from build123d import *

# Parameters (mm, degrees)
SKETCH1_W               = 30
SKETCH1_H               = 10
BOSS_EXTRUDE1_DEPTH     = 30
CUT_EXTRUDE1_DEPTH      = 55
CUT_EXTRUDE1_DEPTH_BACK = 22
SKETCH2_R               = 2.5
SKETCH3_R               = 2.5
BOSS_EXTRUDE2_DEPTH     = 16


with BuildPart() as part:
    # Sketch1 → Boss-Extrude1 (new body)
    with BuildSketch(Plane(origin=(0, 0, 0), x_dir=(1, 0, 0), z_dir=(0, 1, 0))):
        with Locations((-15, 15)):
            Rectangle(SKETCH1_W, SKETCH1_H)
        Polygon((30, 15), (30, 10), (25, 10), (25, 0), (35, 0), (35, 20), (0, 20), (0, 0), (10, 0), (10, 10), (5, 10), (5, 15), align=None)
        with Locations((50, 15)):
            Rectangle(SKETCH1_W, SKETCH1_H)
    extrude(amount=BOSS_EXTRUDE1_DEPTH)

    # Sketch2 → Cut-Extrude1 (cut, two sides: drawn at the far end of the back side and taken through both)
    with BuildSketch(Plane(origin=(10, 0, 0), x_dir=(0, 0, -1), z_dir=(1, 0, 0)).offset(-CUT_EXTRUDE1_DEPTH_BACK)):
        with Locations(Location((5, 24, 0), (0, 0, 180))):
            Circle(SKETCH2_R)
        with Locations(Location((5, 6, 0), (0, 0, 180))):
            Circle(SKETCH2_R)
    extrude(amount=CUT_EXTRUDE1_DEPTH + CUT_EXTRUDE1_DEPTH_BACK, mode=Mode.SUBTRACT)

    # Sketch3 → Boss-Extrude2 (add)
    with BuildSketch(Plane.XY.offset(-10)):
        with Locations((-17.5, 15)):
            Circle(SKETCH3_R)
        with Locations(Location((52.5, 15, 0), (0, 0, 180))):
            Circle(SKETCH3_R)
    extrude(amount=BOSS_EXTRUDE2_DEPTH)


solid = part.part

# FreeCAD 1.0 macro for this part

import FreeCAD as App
import Part
import Sketcher

V = App.Vector

doc = App.newDocument("Part")
body = doc.addObject("PartDesign::Body", "Body")

sketch1 = body.newObject("Sketcher::SketchObject", "Sketch")
sketch1.AttachmentSupport = (doc.getObject("XZ_Plane"), [""])
sketch1.MapMode = "FlatFace"
sketch1.addGeometry([
    Part.LineSegment(V(-30, -20, 0), V(-30, -10, 0)),
    Part.LineSegment(V(-30, -10, 0), V(0, -10, 0)),
    Part.LineSegment(V(0, -10, 0), V(0, 0, 0)),
    Part.LineSegment(V(0, 0, 0), V(10, 0, 0)),
    Part.LineSegment(V(10, 0, 0), V(10, -10, 0)),
    Part.LineSegment(V(10, -10, 0), V(5, -10, 0)),
    Part.LineSegment(V(5, -10, 0), V(5, -15, 0)),
    Part.LineSegment(V(5, -15, 0), V(30, -15, 0)),
    Part.LineSegment(V(30, -15, 0), V(30, -10, 0)),
    Part.LineSegment(V(30, -10, 0), V(25, -10, 0)),
    Part.LineSegment(V(25, -10, 0), V(25, 0, 0)),
    Part.LineSegment(V(25, 0, 0), V(35, 0, 0)),
    Part.LineSegment(V(35, 0, 0), V(35, -10, 0)),
    Part.LineSegment(V(35, -10, 0), V(65, -10, 0)),
    Part.LineSegment(V(65, -10, 0), V(65, -20, 0)),
    Part.LineSegment(V(65, -20, 0), V(-30, -20, 0)),
], False)
sketch1.addConstraint([
    Sketcher.Constraint("Coincident", 0, 2, 1, 1),
    Sketcher.Constraint("Coincident", 1, 2, 2, 1),
    Sketcher.Constraint("Coincident", 2, 2, 3, 1),
    Sketcher.Constraint("Coincident", 3, 2, 4, 1),
    Sketcher.Constraint("Coincident", 4, 2, 5, 1),
    Sketcher.Constraint("Coincident", 5, 2, 6, 1),
    Sketcher.Constraint("Coincident", 6, 2, 7, 1),
    Sketcher.Constraint("Coincident", 7, 2, 8, 1),
    Sketcher.Constraint("Coincident", 8, 2, 9, 1),
    Sketcher.Constraint("Coincident", 9, 2, 10, 1),
    Sketcher.Constraint("Coincident", 10, 2, 11, 1),
    Sketcher.Constraint("Coincident", 11, 2, 12, 1),
    Sketcher.Constraint("Coincident", 12, 2, 13, 1),
    Sketcher.Constraint("Coincident", 13, 2, 14, 1),
    Sketcher.Constraint("Coincident", 14, 2, 15, 1),
    Sketcher.Constraint("Coincident", 15, 2, 0, 1),
    Sketcher.Constraint("Vertical", 0),
    Sketcher.Constraint("Horizontal", 1),
    Sketcher.Constraint("Vertical", 2),
    Sketcher.Constraint("Horizontal", 3),
    Sketcher.Constraint("Vertical", 4),
    Sketcher.Constraint("Horizontal", 5),
    Sketcher.Constraint("Vertical", 6),
    Sketcher.Constraint("Horizontal", 7),
    Sketcher.Constraint("Vertical", 8),
    Sketcher.Constraint("Horizontal", 9),
    Sketcher.Constraint("Vertical", 10),
    Sketcher.Constraint("Horizontal", 11),
    Sketcher.Constraint("Vertical", 12),
    Sketcher.Constraint("Horizontal", 13),
    Sketcher.Constraint("Vertical", 14),
    Sketcher.Constraint("Horizontal", 15),
    Sketcher.Constraint("Coincident", 2, 2, -1, 1),
    Sketcher.Constraint("Symmetric", 0, 2, 8, 2, -2),
    Sketcher.Constraint("PointOnObject", 10, 2, -1),
    Sketcher.Constraint("Horizontal", 1, 2, 4, 2),
    Sketcher.Constraint("Horizontal", 9, 2, 12, 2),
    Sketcher.Constraint("Equal", 5, 9),
    Sketcher.Constraint("Equal", 3, 11),
    Sketcher.Constraint("Equal", 1, 13),
    Sketcher.Constraint("Equal", 11, 0),
    Sketcher.Constraint("Equal", 0, 2),
    Sketcher.Constraint("Equal", 9, 6),
    Sketcher.Constraint("DistanceX", 1, 1, 1, 2, 30.0),
    Sketcher.Constraint("DistanceX", 3, 1, 3, 2, 10.0),
    Sketcher.Constraint("DistanceX", 5, 2, 5, 1, 5.0),
])
pad1 = body.newObject("PartDesign::Pad", "Pad")
pad1.Profile = sketch1
pad1.Length = 30
pad1.Reversed = True

sketch2 = body.newObject("Sketcher::SketchObject", "Sketch001")
sketch2.AttachmentSupport = (doc.getObject("YZ_Plane"), [""])
sketch2.MapMode = "FlatFace"
sketch2.AttachmentOffset = App.Placement(V(0, 0, 10), App.Rotation())
sketch2.addGeometry([
    Part.Circle(V(24, -5, 0), V(0, 0, 1), 2.5),
    Part.Circle(V(6, -5, 0), V(0, 0, 1), 2.5),
], False)
sketch2.addConstraint([
    Sketcher.Constraint("Equal", 0, 1),
    Sketcher.Constraint("Horizontal", 0, 3, 1, 3),
    Sketcher.Constraint("Diameter", 0, 5.0),
    Sketcher.Constraint("DistanceX", -1, 1, 0, 3, 24.0),
    Sketcher.Constraint("DistanceY", 0, 3, -1, 1, 5.0),
    Sketcher.Constraint("DistanceX", -1, 1, 1, 3, 6.0),
])
pocket1 = body.newObject("PartDesign::Pocket", "Pocket")
pocket1.Profile = sketch2
pocket1.Type = "ThroughAll"
pocket1.Midplane = True

sketch3 = body.newObject("Sketcher::SketchObject", "Sketch002")
sketch3.AttachmentSupport = (doc.getObject("XY_Plane"), [""])
sketch3.MapMode = "FlatFace"
sketch3.AttachmentOffset = App.Placement(V(0, 0, -10), App.Rotation())
sketch3.addGeometry([
    Part.Circle(V(-17.5, 15, 0), V(0, 0, 1), 2.5),
    Part.Circle(V(52.5, 15, 0), V(0, 0, 1), 2.5),
], False)
sketch3.addConstraint([
    Sketcher.Constraint("Equal", 0, 1),
    Sketcher.Constraint("Horizontal", 0, 3, 1, 3),
    Sketcher.Constraint("Diameter", 0, 5.0),
    Sketcher.Constraint("DistanceY", -1, 1, 0, 3, 15.0),
    Sketcher.Constraint("DistanceX", 0, 3, 1, 3, 70.0),
    Sketcher.Constraint("DistanceX", 0, 3, -1, 1, 17.5),
])
pad2 = body.newObject("PartDesign::Pad", "Pad001")
pad2.Profile = sketch3
pad2.Length = 16

doc.recompute()
